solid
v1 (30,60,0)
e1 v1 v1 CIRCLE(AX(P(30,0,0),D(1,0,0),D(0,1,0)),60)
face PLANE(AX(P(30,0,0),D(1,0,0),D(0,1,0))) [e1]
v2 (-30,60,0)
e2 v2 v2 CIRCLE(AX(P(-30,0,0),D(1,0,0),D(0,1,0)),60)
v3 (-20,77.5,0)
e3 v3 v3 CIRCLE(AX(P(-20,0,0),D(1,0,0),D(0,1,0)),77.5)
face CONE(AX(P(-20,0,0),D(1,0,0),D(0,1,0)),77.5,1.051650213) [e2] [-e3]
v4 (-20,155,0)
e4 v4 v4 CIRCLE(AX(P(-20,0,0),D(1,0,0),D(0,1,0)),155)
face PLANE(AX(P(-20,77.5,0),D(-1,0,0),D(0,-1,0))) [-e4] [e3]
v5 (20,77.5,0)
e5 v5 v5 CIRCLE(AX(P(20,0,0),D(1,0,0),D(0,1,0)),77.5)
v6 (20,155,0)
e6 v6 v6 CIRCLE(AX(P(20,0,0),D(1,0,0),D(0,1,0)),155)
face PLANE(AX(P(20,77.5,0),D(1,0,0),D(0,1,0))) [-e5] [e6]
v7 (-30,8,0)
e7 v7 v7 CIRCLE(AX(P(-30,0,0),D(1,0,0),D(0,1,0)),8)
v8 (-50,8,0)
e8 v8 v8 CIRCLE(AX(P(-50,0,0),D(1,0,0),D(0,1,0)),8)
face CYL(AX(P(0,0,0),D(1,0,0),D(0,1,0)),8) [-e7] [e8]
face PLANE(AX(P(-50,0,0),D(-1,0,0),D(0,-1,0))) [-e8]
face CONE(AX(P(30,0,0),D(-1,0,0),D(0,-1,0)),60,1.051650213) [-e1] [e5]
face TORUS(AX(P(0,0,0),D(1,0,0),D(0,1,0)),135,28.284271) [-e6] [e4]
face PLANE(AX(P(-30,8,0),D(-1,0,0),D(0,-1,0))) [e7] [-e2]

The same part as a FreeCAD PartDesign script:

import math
import FreeCAD as App
import Part
import Sketcher

V = App.Vector

doc = App.newDocument("Part")
body = doc.addObject("PartDesign::Body", "Body")

sketch1 = doc.addObject("Sketcher::SketchObject", "Sketch")
body.addObject(sketch1)
sketch1.AttachmentSupport = (doc.XY_Plane, [""])
sketch1.MapMode = "FlatFace"
sketch1.addGeometry([
    Part.LineSegment(V(30, 0, 0), V(30, 60, 0)),
    Part.LineSegment(V(30, 60, 0), V(20, 77.5, 0)),
    Part.LineSegment(V(20, 77.5, 0), V(20, 155, 0)),
    Part.ArcOfCircle(Part.Circle(V(0, 135, 0), V(0, 0, 1), 28.284271), math.radians(45), math.radians(135)),
    Part.LineSegment(V(-20, 155, 0), V(-20, 77.5, 0)),
    Part.LineSegment(V(-20, 77.5, 0), V(-30, 60, 0)),
    Part.LineSegment(V(-30, 60, 0), V(-30, 8, 0)),
    Part.LineSegment(V(-30, 8, 0), V(-50, 8, 0)),
    Part.LineSegment(V(-50, 8, 0), V(-50, 0, 0)),
    Part.LineSegment(V(-50, 0, 0), V(30, 0, 0)),
], False)
sketch1.addConstraint([
    Sketcher.Constraint("Coincident", 0, 2, 1, 1),
    Sketcher.Constraint("Coincident", 1, 2, 2, 1),
    Sketcher.Constraint("Coincident", 2, 2, 3, 1),
    Sketcher.Constraint("Coincident", 3, 2, 4, 1),
    Sketcher.Constraint("Coincident", 4, 2, 5, 1),
    Sketcher.Constraint("Coincident", 5, 2, 6, 1),
    Sketcher.Constraint("Coincident", 6, 2, 7, 1),
    Sketcher.Constraint("Coincident", 7, 2, 8, 1),
    Sketcher.Constraint("Coincident", 8, 2, 9, 1),
    Sketcher.Constraint("Coincident", 9, 2, 0, 1),
    Sketcher.Constraint("Vertical", 0),
    Sketcher.Constraint("Vertical", 2),
    Sketcher.Constraint("Vertical", 4),
    Sketcher.Constraint("Vertical", 6),
    Sketcher.Constraint("Horizontal", 7),
    Sketcher.Constraint("Vertical", 8),
    Sketcher.Constraint("Horizontal", 9),
    Sketcher.Constraint("Symmetric", 2, 2, 3, 2, -2),
    Sketcher.Constraint("Symmetric", 0, 2, 5, 2, -2),
    Sketcher.Constraint("PointOnObject", 8, 2, -1),
    Sketcher.Constraint("Horizontal", 1, 2, 4, 2),
    Sketcher.Constraint("DistanceX", 7, 2, 7, 1, 20.0),
    Sketcher.Constraint("DistanceX", 9, 1, 9, 2, 80.0),
    Sketcher.Constraint("DistanceY", 0, 1, 0, 2, 60.0),
    Sketcher.Constraint("DistanceY", 6, 2, 6, 1, 52.0),
    Sketcher.Constraint("DistanceY", 2, 1, 2, 2, 77.5),
    Sketcher.Constraint("DistanceY", -1, 1, 3, 3, 135.0),
    Sketcher.Constraint("DistanceX", -1, 1, 1, 2, 20.0),
    Sketcher.Constraint("DistanceY", -1, 1, 2, 2, 155.0),
])
revolution = doc.addObject("PartDesign::Revolution", "Revolution")
body.addObject(revolution)
revolution.Profile = sketch1
revolution.ReferenceAxis = (sketch1, ["H_Axis"])
revolution.Angle = 360

doc.recompute()
